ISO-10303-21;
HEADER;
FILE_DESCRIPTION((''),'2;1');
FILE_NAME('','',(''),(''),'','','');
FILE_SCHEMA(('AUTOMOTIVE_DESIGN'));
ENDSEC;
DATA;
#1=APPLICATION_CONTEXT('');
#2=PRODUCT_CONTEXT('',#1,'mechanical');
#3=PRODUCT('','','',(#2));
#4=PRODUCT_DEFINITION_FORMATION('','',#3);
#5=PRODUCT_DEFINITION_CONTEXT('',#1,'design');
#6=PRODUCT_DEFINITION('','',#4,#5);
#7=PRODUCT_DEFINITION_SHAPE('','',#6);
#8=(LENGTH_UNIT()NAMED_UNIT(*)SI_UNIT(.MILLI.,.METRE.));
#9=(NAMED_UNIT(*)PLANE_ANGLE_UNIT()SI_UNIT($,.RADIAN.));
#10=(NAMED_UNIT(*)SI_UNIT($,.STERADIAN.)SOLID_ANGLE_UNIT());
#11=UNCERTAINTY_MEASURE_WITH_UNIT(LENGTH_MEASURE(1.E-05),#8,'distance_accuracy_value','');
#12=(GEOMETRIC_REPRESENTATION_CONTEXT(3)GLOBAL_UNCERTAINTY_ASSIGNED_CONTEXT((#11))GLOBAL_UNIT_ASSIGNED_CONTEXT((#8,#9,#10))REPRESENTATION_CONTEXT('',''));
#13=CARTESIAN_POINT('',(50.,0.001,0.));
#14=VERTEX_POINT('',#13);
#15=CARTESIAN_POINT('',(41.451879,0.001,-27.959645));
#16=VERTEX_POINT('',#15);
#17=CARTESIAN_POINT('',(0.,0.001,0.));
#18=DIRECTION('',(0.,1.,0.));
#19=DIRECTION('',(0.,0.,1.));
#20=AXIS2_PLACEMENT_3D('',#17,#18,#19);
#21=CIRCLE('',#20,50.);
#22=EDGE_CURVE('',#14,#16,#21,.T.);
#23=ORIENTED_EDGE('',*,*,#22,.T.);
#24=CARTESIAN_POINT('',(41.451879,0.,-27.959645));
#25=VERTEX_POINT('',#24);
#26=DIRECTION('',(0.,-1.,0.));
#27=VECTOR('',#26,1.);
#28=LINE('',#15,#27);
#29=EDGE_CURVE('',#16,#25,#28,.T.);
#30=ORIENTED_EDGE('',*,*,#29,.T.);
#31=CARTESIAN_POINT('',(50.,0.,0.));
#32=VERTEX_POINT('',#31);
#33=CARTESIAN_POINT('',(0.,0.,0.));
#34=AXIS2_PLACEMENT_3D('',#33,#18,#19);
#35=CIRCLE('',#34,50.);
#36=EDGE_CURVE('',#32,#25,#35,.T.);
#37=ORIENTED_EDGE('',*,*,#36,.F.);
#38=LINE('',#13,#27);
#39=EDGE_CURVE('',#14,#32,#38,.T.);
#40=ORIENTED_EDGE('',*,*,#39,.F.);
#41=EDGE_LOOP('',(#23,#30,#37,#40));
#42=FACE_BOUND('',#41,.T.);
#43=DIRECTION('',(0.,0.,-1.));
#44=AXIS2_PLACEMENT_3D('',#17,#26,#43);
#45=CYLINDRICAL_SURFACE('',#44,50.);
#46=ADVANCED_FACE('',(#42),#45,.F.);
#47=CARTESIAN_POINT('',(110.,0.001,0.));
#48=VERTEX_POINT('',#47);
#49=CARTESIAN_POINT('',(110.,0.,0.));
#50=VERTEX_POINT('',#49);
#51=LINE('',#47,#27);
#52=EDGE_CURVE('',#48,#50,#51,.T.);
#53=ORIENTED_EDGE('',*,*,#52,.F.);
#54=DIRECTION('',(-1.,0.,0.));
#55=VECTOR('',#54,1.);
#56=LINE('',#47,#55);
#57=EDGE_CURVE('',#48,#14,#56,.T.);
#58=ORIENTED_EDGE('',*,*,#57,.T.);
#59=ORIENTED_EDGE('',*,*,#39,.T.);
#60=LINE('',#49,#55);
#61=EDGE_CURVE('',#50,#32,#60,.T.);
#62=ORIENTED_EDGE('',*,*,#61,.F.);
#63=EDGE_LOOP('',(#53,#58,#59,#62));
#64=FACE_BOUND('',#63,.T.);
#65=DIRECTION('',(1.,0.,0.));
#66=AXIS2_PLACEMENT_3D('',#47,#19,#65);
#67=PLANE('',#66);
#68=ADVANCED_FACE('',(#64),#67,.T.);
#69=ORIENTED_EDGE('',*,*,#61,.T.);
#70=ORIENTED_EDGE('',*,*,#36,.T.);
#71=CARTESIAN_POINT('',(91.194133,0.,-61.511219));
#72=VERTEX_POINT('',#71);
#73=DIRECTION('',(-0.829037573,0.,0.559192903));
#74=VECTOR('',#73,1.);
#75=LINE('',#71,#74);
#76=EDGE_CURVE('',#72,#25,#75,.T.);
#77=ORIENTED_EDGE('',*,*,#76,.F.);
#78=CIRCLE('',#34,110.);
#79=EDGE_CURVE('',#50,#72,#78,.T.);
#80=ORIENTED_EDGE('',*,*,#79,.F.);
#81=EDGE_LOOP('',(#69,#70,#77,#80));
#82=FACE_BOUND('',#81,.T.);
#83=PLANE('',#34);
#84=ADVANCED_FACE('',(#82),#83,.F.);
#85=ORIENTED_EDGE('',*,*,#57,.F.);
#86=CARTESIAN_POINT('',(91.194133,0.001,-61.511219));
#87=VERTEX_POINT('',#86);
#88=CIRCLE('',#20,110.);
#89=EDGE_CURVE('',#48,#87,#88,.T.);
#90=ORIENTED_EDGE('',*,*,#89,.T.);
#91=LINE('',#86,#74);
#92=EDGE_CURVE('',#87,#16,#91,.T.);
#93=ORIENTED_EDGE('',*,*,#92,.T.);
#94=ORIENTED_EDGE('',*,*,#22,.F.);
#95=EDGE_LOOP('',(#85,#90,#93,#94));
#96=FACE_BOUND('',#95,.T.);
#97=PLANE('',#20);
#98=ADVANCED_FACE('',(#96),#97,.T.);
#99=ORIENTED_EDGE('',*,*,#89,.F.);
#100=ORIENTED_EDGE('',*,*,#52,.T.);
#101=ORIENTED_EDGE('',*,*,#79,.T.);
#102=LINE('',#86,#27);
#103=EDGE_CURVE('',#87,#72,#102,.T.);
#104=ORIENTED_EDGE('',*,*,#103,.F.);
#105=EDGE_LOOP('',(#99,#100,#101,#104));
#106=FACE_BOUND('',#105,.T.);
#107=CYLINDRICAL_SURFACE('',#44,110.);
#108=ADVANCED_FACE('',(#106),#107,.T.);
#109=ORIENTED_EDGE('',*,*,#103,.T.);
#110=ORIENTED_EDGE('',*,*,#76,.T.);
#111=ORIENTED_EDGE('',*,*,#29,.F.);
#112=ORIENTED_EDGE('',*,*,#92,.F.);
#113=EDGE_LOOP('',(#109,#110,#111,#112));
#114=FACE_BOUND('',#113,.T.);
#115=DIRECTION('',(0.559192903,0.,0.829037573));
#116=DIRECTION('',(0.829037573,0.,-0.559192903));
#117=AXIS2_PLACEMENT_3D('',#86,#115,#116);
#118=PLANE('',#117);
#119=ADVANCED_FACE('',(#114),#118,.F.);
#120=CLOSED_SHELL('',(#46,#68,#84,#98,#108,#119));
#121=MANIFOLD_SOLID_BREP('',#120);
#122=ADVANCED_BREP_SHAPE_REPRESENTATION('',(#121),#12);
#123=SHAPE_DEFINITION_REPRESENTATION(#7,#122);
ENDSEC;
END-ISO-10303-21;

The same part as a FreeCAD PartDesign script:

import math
import FreeCAD as App
import Part
import Sketcher
Q = App.Units.Quantity

doc = App.newDocument("Part")
body = doc.addObject("PartDesign::Body", "Body")

sketch1 = body.newObject("Sketcher::SketchObject", "Sketch")
sketch1.AttachmentSupport = (doc.getObject("XZ_Plane"), [""])
sketch1.MapMode = "FlatFace"
sketch1.addGeometry([
    Part.LineSegment(App.Vector(91, -62, 0), App.Vector(41, -28, 0)),
    Part.ArcOfCircle(Part.Circle(App.Vector(0, 0, 0), App.Vector(0, 0, 1), 50), math.radians(-34), math.radians(0)),
    Part.LineSegment(App.Vector(50, 0, 0), App.Vector(110, 0, 0)),
    Part.ArcOfCircle(Part.Circle(App.Vector(0, 0, 0), App.Vector(0, 0, 1), 110), math.radians(-34), math.radians(0)),
], False)
sketch1.addConstraint([
    Sketcher.Constraint("Coincident", 0, 2, 1, 1),
    Sketcher.Constraint("Coincident", 1, 2, 2, 1),
    Sketcher.Constraint("Coincident", 2, 2, 3, 2),
    Sketcher.Constraint("Coincident", 3, 1, 0, 1),
    Sketcher.Constraint("Horizontal", 2),
    Sketcher.Constraint("Coincident", 1, 3, -1, 1),
    Sketcher.Constraint("Coincident", 3, 3, -1, 1),
    Sketcher.Constraint("PointOnObject", 1, 2, -1),
    Sketcher.Constraint("Radius", 1, 50.0),
    Sketcher.Constraint("Radius", 3, 110.0),
    Sketcher.Constraint("Angle", 0, Q("146 deg")),
    Sketcher.Constraint("DistanceX", -1, 1, 0, 2, 41.451879),
])
pad1 = body.newObject("PartDesign::Pad", "Pad")
pad1.Profile = sketch1
pad1.Length = 0.001
pad1.Reversed = True

doc.recompute()
